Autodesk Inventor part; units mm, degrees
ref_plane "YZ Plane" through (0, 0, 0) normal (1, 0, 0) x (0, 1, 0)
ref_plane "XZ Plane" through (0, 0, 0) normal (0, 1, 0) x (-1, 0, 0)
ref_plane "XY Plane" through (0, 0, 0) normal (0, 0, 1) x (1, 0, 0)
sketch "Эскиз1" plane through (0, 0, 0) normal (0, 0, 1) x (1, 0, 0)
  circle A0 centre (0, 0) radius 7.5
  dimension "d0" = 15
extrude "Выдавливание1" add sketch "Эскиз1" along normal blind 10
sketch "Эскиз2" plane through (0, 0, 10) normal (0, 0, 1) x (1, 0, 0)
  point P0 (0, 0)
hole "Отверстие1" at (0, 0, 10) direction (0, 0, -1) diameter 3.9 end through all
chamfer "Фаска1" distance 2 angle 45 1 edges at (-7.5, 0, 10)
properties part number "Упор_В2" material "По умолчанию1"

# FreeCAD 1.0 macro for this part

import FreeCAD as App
import Part
import Sketcher


def edges_at(feature, points):
    """Names of the edges that pass closest to the given points."""
    edges = feature.Shape.Edges
    near = lambda p: min(range(len(edges)), key=lambda i: edges[i].distToShape(Part.Vertex(*p))[0])
    return sorted({f"Edge{near(p) + 1}" for p in points})

doc = App.newDocument("Part")
params = doc.addObject("Spreadsheet::Sheet", "Params")
for row, (alias, value) in enumerate([
    ("sketch1_diameter", "15 mm"),
    ("pad1_length", "10 mm"),
    ("sketch2_diameter", "3.9 mm"),
    ("hole_diameter", "3.9 mm"),
    ("chamfer_size", "2 mm"),
], start=1):
    params.set(f"A{row}", alias)
    params.set(f"B{row}", "=" + value)
    params.setAlias(f"B{row}", alias)

body = doc.addObject("PartDesign::Body", "Body")

sketch1 = body.newObject("Sketcher::SketchObject", "Sketch")
sketch1.AttachmentSupport = (doc.getObject("XY_Plane"), [""])
sketch1.MapMode = "FlatFace"
sketch1.addGeometry(Part.Circle(App.Vector(0, 0, 0), App.Vector(0, 0, 1), 7.5), False)
sketch1.addConstraint([
    Sketcher.Constraint("Coincident", 0, 3, -1, 1),
    Sketcher.Constraint("Diameter", 0, 15.0),
])
sketch1.setExpression("Constraints[1]", "Params.sketch1_diameter")
pad1 = body.newObject("PartDesign::Pad", "Pad")
pad1.Profile = sketch1
pad1.setExpression("Length", "Params.pad1_length")

sketch2 = body.newObject("Sketcher::SketchObject", "Sketch001")
sketch2.AttachmentSupport = (doc.getObject("XY_Plane"), [""])
sketch2.MapMode = "FlatFace"
sketch2.AttachmentOffset = App.Placement(App.Vector(0, 0, 10), App.Rotation())
sketch2.addGeometry(Part.Circle(App.Vector(0, 0, 0), App.Vector(0, 0, 1), 1.95), False)
sketch2.addConstraint([
    Sketcher.Constraint("Coincident", 0, 3, -1, 1),
    Sketcher.Constraint("Diameter", 0, 3.9),
])
sketch2.setExpression("Constraints[1]", "Params.sketch2_diameter")
doc.recompute()
hole = body.newObject("PartDesign::Hole", "Hole")
hole.Profile = sketch2
hole.ThreadType = "None"
hole.setExpression("Diameter", "Params.hole_diameter")
hole.DepthType = "ThroughAll"
doc.recompute()

chamfer = body.newObject("PartDesign::Chamfer", "Chamfer")
chamfer.Base = (hole, edges_at(hole, [(-7.5, 0, 10)]))
chamfer.setExpression("Size", "Params.chamfer_size")

doc.recompute()
